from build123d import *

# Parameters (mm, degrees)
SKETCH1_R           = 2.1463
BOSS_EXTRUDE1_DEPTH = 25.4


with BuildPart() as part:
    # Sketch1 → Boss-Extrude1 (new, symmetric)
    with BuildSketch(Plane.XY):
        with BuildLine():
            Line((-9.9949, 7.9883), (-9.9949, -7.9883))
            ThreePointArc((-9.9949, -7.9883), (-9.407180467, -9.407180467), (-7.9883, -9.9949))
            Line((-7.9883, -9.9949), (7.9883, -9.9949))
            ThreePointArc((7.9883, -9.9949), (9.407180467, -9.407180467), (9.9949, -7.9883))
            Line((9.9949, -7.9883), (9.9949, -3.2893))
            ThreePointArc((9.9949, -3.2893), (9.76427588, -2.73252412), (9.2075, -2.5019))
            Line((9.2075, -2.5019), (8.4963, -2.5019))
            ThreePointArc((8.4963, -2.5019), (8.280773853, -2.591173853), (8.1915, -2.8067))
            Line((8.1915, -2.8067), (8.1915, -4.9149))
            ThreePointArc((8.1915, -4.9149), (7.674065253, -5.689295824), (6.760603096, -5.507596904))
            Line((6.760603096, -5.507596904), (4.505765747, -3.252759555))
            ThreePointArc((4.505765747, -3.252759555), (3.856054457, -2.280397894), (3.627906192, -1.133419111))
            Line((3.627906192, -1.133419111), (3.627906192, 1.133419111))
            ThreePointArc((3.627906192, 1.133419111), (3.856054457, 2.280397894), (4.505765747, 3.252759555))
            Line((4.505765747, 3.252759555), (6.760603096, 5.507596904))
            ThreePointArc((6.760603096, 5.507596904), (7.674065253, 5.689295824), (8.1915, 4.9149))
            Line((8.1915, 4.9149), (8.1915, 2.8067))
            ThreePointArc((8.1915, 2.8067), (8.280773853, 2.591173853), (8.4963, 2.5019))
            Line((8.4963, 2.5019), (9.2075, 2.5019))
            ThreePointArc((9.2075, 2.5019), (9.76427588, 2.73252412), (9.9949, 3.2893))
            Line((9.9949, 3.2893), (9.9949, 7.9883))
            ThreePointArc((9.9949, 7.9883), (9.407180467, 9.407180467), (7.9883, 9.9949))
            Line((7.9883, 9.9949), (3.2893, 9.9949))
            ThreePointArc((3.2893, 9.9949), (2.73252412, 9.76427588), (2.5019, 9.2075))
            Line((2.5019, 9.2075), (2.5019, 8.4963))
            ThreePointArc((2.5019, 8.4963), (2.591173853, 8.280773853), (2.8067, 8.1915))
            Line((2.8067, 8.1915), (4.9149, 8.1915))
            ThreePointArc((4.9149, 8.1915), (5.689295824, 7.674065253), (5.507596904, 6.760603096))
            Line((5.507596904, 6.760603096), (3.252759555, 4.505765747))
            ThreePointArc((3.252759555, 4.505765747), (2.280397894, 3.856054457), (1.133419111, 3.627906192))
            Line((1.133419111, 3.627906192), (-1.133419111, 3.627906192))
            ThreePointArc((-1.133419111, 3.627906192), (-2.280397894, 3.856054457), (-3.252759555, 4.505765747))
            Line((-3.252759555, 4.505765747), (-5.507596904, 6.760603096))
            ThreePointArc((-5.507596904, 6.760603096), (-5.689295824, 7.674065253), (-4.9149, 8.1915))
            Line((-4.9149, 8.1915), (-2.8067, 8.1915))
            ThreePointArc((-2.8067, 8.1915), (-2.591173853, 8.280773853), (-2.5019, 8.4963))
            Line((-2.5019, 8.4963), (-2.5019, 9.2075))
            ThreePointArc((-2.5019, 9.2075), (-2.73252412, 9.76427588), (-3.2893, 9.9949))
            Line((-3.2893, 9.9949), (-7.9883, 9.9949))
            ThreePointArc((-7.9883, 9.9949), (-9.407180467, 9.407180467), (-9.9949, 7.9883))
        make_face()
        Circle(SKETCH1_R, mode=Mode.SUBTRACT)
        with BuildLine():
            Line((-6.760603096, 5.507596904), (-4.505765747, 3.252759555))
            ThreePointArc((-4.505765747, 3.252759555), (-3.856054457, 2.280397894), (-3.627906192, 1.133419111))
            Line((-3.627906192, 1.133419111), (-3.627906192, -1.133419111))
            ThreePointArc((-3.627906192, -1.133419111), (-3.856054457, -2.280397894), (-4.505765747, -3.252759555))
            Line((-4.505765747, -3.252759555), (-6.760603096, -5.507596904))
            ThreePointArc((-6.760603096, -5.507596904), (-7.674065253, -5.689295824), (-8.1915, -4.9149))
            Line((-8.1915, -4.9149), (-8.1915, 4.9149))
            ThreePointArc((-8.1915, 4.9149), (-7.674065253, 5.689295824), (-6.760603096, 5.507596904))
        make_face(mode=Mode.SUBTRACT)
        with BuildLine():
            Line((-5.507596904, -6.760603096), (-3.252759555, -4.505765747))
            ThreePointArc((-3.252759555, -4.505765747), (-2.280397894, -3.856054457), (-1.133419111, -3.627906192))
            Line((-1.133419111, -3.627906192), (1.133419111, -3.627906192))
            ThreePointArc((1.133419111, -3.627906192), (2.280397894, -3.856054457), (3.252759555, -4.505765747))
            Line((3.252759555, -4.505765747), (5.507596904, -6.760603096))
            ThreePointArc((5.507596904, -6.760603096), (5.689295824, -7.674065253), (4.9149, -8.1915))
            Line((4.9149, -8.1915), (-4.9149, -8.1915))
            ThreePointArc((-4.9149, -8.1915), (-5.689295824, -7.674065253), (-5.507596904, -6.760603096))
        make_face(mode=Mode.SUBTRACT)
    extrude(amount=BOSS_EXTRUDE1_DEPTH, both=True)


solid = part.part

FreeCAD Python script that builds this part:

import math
import FreeCAD as App
import Part
import Sketcher
from FreeCAD import Vector
Q = App.Units.Quantity

doc = App.newDocument("Part")
body = doc.addObject("PartDesign::Body", "Body")

# Sketch on XY plane
sketch1 = body.newObject("Sketcher::SketchObject", "Sketch")
sketch1.AttachmentSupport = (doc.getObject("XY_Plane"), [""])
sketch1.MapMode = "FlatFace"
sketch1.addGeometry([
    Part.LineSegment(Vector(-9.99, 7.99, 0), Vector(-9.99, -7.99, 0)),  # 0
    Part.ArcOfCircle(Part.Circle(Vector(-7.99, -7.99, 0), Vector(0, 0, 1), 2.01), math.radians(180), math.radians(270)),  # 1
    Part.LineSegment(Vector(-7.99, -9.99, 0), Vector(7.99, -9.99, 0)),  # 2
    Part.ArcOfCircle(Part.Circle(Vector(7.99, -7.99, 0), Vector(0, 0, 1), 2.01), math.radians(-90), math.radians(0)),  # 3
    Part.LineSegment(Vector(9.99, -7.99, 0), Vector(9.99, -3.29, 0)),  # 4
    Part.ArcOfCircle(Part.Circle(Vector(9.21, -3.29, 0), Vector(0, 0, 1), 0.79), math.radians(0), math.radians(90)),  # 5
    Part.LineSegment(Vector(9.21, -2.5, 0), Vector(8.5, -2.5, 0)),  # 6
    Part.ArcOfCircle(Part.Circle(Vector(8.5, -2.81, 0), Vector(0, 0, 1), 0.3), math.radians(90), math.radians(180)),  # 7
    Part.LineSegment(Vector(8.19, -2.81, 0), Vector(8.19, -4.91, 0)),  # 8
    Part.ArcOfCircle(Part.Circle(Vector(7.35, -4.91, 0), Vector(0, 0, 1), 0.84), math.radians(-135), math.radians(0)),  # 9
    Part.LineSegment(Vector(6.76, -5.51, 0), Vector(4.51, -3.25, 0)),  # 10
    Part.ArcOfCircle(Part.Circle(Vector(6.63, -1.13, 0), Vector(0, 0, 1), 3), math.radians(180), math.radians(225)),  # 11
    Part.LineSegment(Vector(3.63, -1.13, 0), Vector(3.63, 1.13, 0)),  # 12
    Part.ArcOfCircle(Part.Circle(Vector(6.63, 1.13, 0), Vector(0, 0, 1), 3), math.radians(135), math.radians(180)),  # 13
    Part.LineSegment(Vector(4.51, 3.25, 0), Vector(6.76, 5.51, 0)),  # 14
    Part.ArcOfCircle(Part.Circle(Vector(7.35, 4.91, 0), Vector(0, 0, 1), 0.84), math.radians(0), math.radians(135)),  # 15
    Part.LineSegment(Vector(8.19, 4.91, 0), Vector(8.19, 2.81, 0)),  # 16
    Part.ArcOfCircle(Part.Circle(Vector(8.5, 2.81, 0), Vector(0, 0, 1), 0.3), math.radians(180), math.radians(270)),  # 17
    Part.LineSegment(Vector(8.5, 2.5, 0), Vector(9.21, 2.5, 0)),  # 18
    Part.ArcOfCircle(Part.Circle(Vector(9.21, 3.29, 0), Vector(0, 0, 1), 0.79), math.radians(-90), math.radians(0)),  # 19
    Part.LineSegment(Vector(9.99, 3.29, 0), Vector(9.99, 7.99, 0)),  # 20
    Part.ArcOfCircle(Part.Circle(Vector(7.99, 7.99, 0), Vector(0, 0, 1), 2.01), math.radians(0), math.radians(90)),  # 21
    Part.LineSegment(Vector(7.99, 9.99, 0), Vector(3.29, 9.99, 0)),  # 22
    Part.ArcOfCircle(Part.Circle(Vector(3.29, 9.21, 0), Vector(0, 0, 1), 0.79), math.radians(90), math.radians(180)),  # 23
    Part.LineSegment(Vector(2.5, 9.21, 0), Vector(2.5, 8.5, 0)),  # 24
    Part.ArcOfCircle(Part.Circle(Vector(2.81, 8.5, 0), Vector(0, 0, 1), 0.3), math.radians(180), math.radians(270)),  # 25
    Part.LineSegment(Vector(2.81, 8.19, 0), Vector(4.91, 8.19, 0)),  # 26
    Part.ArcOfCircle(Part.Circle(Vector(4.91, 7.35, 0), Vector(0, 0, 1), 0.84), math.radians(-45), math.radians(90)),  # 27
    Part.LineSegment(Vector(5.51, 6.76, 0), Vector(3.25, 4.51, 0)),  # 28
    Part.ArcOfCircle(Part.Circle(Vector(1.13, 6.63, 0), Vector(0, 0, 1), 3), math.radians(-90), math.radians(-45)),  # 29
    Part.LineSegment(Vector(1.13, 3.63, 0), Vector(-1.13, 3.63, 0)),  # 30
    Part.ArcOfCircle(Part.Circle(Vector(-1.13, 6.63, 0), Vector(0, 0, 1), 3), math.radians(-135), math.radians(-90)),  # 31
    Part.LineSegment(Vector(-3.25, 4.51, 0), Vector(-5.51, 6.76, 0)),  # 32
    Part.ArcOfCircle(Part.Circle(Vector(-4.91, 7.35, 0), Vector(0, 0, 1), 0.84), math.radians(90), math.radians(225)),  # 33
    Part.LineSegment(Vector(-4.91, 8.19, 0), Vector(-2.81, 8.19, 0)),  # 34
    Part.ArcOfCircle(Part.Circle(Vector(-2.81, 8.5, 0), Vector(0, 0, 1), 0.3), math.radians(-90), math.radians(0)),  # 35
    Part.LineSegment(Vector(-2.5, 8.5, 0), Vector(-2.5, 9.21, 0)),  # 36
    Part.ArcOfCircle(Part.Circle(Vector(-3.29, 9.21, 0), Vector(0, 0, 1), 0.79), math.radians(0), math.radians(90)),  # 37
    Part.LineSegment(Vector(-3.29, 9.99, 0), Vector(-7.99, 9.99, 0)),  # 38
    Part.ArcOfCircle(Part.Circle(Vector(-7.99, 7.99, 0), Vector(0, 0, 1), 2.01), math.radians(90), math.radians(180)),  # 39
    Part.ArcOfCircle(Part.Circle(Vector(-4.91, -7.35, 0), Vector(0, 0, 1), 0.84), math.radians(135), math.radians(270)),  # 40
    Part.LineSegment(Vector(-5.51, -6.76, 0), Vector(-3.25, -4.51, 0)),  # 41
    Part.ArcOfCircle(Part.Circle(Vector(-1.13, -6.63, 0), Vector(0, 0, 1), 3), math.radians(90), math.radians(135)),  # 42
    Part.LineSegment(Vector(-1.13, -3.63, 0), Vector(1.13, -3.63, 0)),  # 43
    Part.ArcOfCircle(Part.Circle(Vector(1.13, -6.63, 0), Vector(0, 0, 1), 3), math.radians(45), math.radians(90)),  # 44
    Part.LineSegment(Vector(3.25, -4.51, 0), Vector(5.51, -6.76, 0)),  # 45
    Part.ArcOfCircle(Part.Circle(Vector(4.91, -7.35, 0), Vector(0, 0, 1), 0.84), math.radians(-90), math.radians(45)),  # 46
    Part.LineSegment(Vector(4.91, -8.19, 0), Vector(-4.91, -8.19, 0)),  # 47
    Part.ArcOfCircle(Part.Circle(Vector(-7.35, 4.91, 0), Vector(0, 0, 1), 0.84), math.radians(45), math.radians(180)),  # 48
    Part.LineSegment(Vector(-6.76, 5.51, 0), Vector(-4.51, 3.25, 0)),  # 49
    Part.ArcOfCircle(Part.Circle(Vector(-6.63, 1.13, 0), Vector(0, 0, 1), 3), math.radians(0), math.radians(45)),  # 50
    Part.LineSegment(Vector(-3.63, 1.13, 0), Vector(-3.63, -1.13, 0)),  # 51
    Part.ArcOfCircle(Part.Circle(Vector(-6.63, -1.13, 0), Vector(0, 0, 1), 3), math.radians(-45), math.radians(0)),  # 52
    Part.LineSegment(Vector(-4.51, -3.25, 0), Vector(-6.76, -5.51, 0)),  # 53
    Part.ArcOfCircle(Part.Circle(Vector(-7.35, -4.91, 0), Vector(0, 0, 1), 0.84), math.radians(180), math.radians(315)),  # 54
    Part.LineSegment(Vector(-8.19, -4.91, 0), Vector(-8.19, 4.91, 0)),  # 55
    Part.Circle(Vector(0, 0, 0), Vector(0, 0, 1), 2.15),  # 56
], False)
sketch1.addConstraint([
    Sketcher.Constraint("Tangent", 0, 2, 1, 1),
    Sketcher.Constraint("Tangent", 1, 2, 2, 1),
    Sketcher.Constraint("Tangent", 2, 2, 3, 1),
    Sketcher.Constraint("Tangent", 3, 2, 4, 1),
    Sketcher.Constraint("Tangent", 4, 2, 5, 1),
    Sketcher.Constraint("Tangent", 5, 2, 6, 1),
    Sketcher.Constraint("Tangent", 6, 2, 7, 1),
    Sketcher.Constraint("Tangent", 7, 2, 8, 1),
    Sketcher.Constraint("Tangent", 8, 2, 9, 2),
    Sketcher.Constraint("Tangent", 9, 1, 10, 1),
    Sketcher.Constraint("Tangent", 10, 2, 11, 2),
    Sketcher.Constraint("Tangent", 11, 1, 12, 1),
    Sketcher.Constraint("Tangent", 12, 2, 13, 2),
    Sketcher.Constraint("Tangent", 13, 1, 14, 1),
    Sketcher.Constraint("Tangent", 14, 2, 15, 2),
    Sketcher.Constraint("Tangent", 15, 1, 16, 1),
    Sketcher.Constraint("Tangent", 16, 2, 17, 1),
    Sketcher.Constraint("Tangent", 17, 2, 18, 1),
    Sketcher.Constraint("Tangent", 18, 2, 19, 1),
    Sketcher.Constraint("Tangent", 19, 2, 20, 1),
    Sketcher.Constraint("Tangent", 20, 2, 21, 1),
    Sketcher.Constraint("Tangent", 21, 2, 22, 1),
    Sketcher.Constraint("Tangent", 22, 2, 23, 1),
    Sketcher.Constraint("Tangent", 23, 2, 24, 1),
    Sketcher.Constraint("Tangent", 24, 2, 25, 1),
    Sketcher.Constraint("Tangent", 25, 2, 26, 1),
    Sketcher.Constraint("Tangent", 26, 2, 27, 2),
    Sketcher.Constraint("Tangent", 27, 1, 28, 1),
    Sketcher.Constraint("Tangent", 28, 2, 29, 2),
    Sketcher.Constraint("Tangent", 29, 1, 30, 1),
    Sketcher.Constraint("Tangent", 30, 2, 31, 2),
    Sketcher.Constraint("Tangent", 31, 1, 32, 1),
    Sketcher.Constraint("Tangent", 32, 2, 33, 2),
    Sketcher.Constraint("Tangent", 33, 1, 34, 1),
    Sketcher.Constraint("Tangent", 34, 2, 35, 1),
    Sketcher.Constraint("Tangent", 35, 2, 36, 1),
    Sketcher.Constraint("Tangent", 36, 2, 37, 1),
    Sketcher.Constraint("Tangent", 37, 2, 38, 1),
    Sketcher.Constraint("Tangent", 38, 2, 39, 1),
    Sketcher.Constraint("Tangent", 39, 2, 0, 1),
    Sketcher.Constraint("Tangent", 40, 1, 41, 1),
    Sketcher.Constraint("Tangent", 41, 2, 42, 2),
    Sketcher.Constraint("Tangent", 42, 1, 43, 1),
    Sketcher.Constraint("Tangent", 43, 2, 44, 2),
    Sketcher.Constraint("Tangent", 44, 1, 45, 1),
    Sketcher.Constraint("Tangent", 45, 2, 46, 2),
    Sketcher.Constraint("Tangent", 46, 1, 47, 1),
    Sketcher.Constraint("Tangent", 47, 2, 40, 2),
    Sketcher.Constraint("Tangent", 48, 1, 49, 1),
    Sketcher.Constraint("Tangent", 49, 2, 50, 2),
    Sketcher.Constraint("Tangent", 50, 1, 51, 1),
    Sketcher.Constraint("Tangent", 51, 2, 52, 2),
    Sketcher.Constraint("Tangent", 52, 1, 53, 1),
    Sketcher.Constraint("Tangent", 53, 2, 54, 2),
    Sketcher.Constraint("Tangent", 54, 1, 55, 1),
    Sketcher.Constraint("Tangent", 55, 2, 48, 2),
    Sketcher.Constraint("Vertical", 0),
    Sketcher.Constraint("Horizontal", 2),
    Sketcher.Constraint("Vertical", 4),
    Sketcher.Constraint("Horizontal", 6),
    Sketcher.Constraint("Vertical", 8),
    Sketcher.Constraint("Vertical", 12),
    Sketcher.Constraint("Vertical", 16),
    Sketcher.Constraint("Horizontal", 18),
    Sketcher.Constraint("Vertical", 20),
    Sketcher.Constraint("Horizontal", 22),
    Sketcher.Constraint("Vertical", 24),
    Sketcher.Constraint("Horizontal", 26),
    Sketcher.Constraint("Horizontal", 30),
    Sketcher.Constraint("Horizontal", 34),
    Sketcher.Constraint("Vertical", 36),
    Sketcher.Constraint("Horizontal", 38),
    Sketcher.Constraint("Horizontal", 43),
    Sketcher.Constraint("Horizontal", 47),
    Sketcher.Constraint("Vertical", 51),
    Sketcher.Constraint("Vertical", 55),
    Sketcher.Constraint("Coincident", 56, 3, -1, 1),
    Sketcher.Constraint("Equal", 1, 3),
    Sketcher.Constraint("Equal", 11, 13),
    Sketcher.Constraint("Equal", 9, 15),
    Sketcher.Constraint("Equal", 7, 17),
    Sketcher.Constraint("Equal", 5, 19),
    Sketcher.Constraint("Equal", 3, 21),
    Sketcher.Constraint("Equal", 19, 23),
    Sketcher.Constraint("Equal", 17, 25),
    Sketcher.Constraint("Equal", 15, 27),
    Sketcher.Constraint("Equal", 13, 29),
    Sketcher.Constraint("Equal", 29, 31),
    Sketcher.Constraint("Equal", 27, 33),
    Sketcher.Constraint("Equal", 25, 35),
    Sketcher.Constraint("Equal", 23, 37),
    Sketcher.Constraint("Equal", 21, 39),
    Sketcher.Constraint("Equal", 33, 40),
    Sketcher.Constraint("Equal", 31, 42),
    Sketcher.Constraint("Equal", 42, 44),
    Sketcher.Constraint("Equal", 40, 46),
    Sketcher.Constraint("Equal", 46, 48),
    Sketcher.Constraint("Equal", 44, 50),
    Sketcher.Constraint("Equal", 50, 52),
    Sketcher.Constraint("Equal", 48, 54),
    Sketcher.Constraint("Symmetric", 1, 3, 21, 3, -1, 1),
    Sketcher.Constraint("Symmetric", 3, 3, 39, 3, -1, 1),
    Sketcher.Constraint("Symmetric", 27, 3, 40, 3, -1, 1),
    Sketcher.Constraint("Symmetric", 29, 3, 42, 3, -1, 1),
    Sketcher.Constraint("Symmetric", 33, 3, 46, 3, -1, 1),
    Sketcher.Constraint("Symmetric", 9, 3, 48, 3, -1, 1),
    Sketcher.Constraint("Symmetric", 11, 3, 50, 3, -1, 1),
    Sketcher.Constraint("Symmetric", 15, 3, 54, 3, -1, 1),
    Sketcher.Constraint("Symmetric", 28, 2, 31, 1, -2),
    Sketcher.Constraint("Symmetric", 14, 2, 48, 1, -2),
    Sketcher.Constraint("Perpendicular", 10, 14),
    Sketcher.Constraint("Parallel", 14, 28),
    Sketcher.Constraint("Perpendicular", 41, 45),
    Sketcher.Constraint("Perpendicular", 49, 53),
    Sketcher.Constraint("Equal", 26, 34),
    Sketcher.Constraint("Equal", 2, 0),
    Sketcher.Constraint("Equal", 38, 4),
    Sketcher.Constraint("Equal", 34, 8),
    Sketcher.Constraint("Equal", 43, 12),
    Sketcher.Constraint("Equal", 8, 16),
    Sketcher.Constraint("Equal", 18, 24),
    Sketcher.Constraint("Diameter", 56, Q("0.169 in")),
    Sketcher.Constraint("Radius", 1, Q("0.079 in")),
    Sketcher.Constraint("Radius", 5, Q("0.031 in")),
    Sketcher.Constraint("Radius", 7, Q("0.012 in")),
    Sketcher.Constraint("Radius", 9, Q("0.033 in")),
    Sketcher.Constraint("Radius", 11, Q("0.118 in")),
    Sketcher.Constraint("DistanceX", 2, 1, 2, 2, Q("0.629 in")),
    Sketcher.Constraint("DistanceX", 6, 2, 6, 1, Q("0.028 in")),
    Sketcher.Constraint("DistanceX", 22, 2, 22, 1, Q("0.185 in")),
    Sketcher.Constraint("DistanceX", 26, 1, 26, 2, Q("0.083 in")),
    Sketcher.Constraint("DistanceX", 30, 2, 30, 1, 2.266838),
])
pad1 = body.newObject("PartDesign::Pad", "Pad")
pad1.Profile = sketch1
pad1.Length = Q("2 in")
pad1.Midplane = True

doc.recompute()
